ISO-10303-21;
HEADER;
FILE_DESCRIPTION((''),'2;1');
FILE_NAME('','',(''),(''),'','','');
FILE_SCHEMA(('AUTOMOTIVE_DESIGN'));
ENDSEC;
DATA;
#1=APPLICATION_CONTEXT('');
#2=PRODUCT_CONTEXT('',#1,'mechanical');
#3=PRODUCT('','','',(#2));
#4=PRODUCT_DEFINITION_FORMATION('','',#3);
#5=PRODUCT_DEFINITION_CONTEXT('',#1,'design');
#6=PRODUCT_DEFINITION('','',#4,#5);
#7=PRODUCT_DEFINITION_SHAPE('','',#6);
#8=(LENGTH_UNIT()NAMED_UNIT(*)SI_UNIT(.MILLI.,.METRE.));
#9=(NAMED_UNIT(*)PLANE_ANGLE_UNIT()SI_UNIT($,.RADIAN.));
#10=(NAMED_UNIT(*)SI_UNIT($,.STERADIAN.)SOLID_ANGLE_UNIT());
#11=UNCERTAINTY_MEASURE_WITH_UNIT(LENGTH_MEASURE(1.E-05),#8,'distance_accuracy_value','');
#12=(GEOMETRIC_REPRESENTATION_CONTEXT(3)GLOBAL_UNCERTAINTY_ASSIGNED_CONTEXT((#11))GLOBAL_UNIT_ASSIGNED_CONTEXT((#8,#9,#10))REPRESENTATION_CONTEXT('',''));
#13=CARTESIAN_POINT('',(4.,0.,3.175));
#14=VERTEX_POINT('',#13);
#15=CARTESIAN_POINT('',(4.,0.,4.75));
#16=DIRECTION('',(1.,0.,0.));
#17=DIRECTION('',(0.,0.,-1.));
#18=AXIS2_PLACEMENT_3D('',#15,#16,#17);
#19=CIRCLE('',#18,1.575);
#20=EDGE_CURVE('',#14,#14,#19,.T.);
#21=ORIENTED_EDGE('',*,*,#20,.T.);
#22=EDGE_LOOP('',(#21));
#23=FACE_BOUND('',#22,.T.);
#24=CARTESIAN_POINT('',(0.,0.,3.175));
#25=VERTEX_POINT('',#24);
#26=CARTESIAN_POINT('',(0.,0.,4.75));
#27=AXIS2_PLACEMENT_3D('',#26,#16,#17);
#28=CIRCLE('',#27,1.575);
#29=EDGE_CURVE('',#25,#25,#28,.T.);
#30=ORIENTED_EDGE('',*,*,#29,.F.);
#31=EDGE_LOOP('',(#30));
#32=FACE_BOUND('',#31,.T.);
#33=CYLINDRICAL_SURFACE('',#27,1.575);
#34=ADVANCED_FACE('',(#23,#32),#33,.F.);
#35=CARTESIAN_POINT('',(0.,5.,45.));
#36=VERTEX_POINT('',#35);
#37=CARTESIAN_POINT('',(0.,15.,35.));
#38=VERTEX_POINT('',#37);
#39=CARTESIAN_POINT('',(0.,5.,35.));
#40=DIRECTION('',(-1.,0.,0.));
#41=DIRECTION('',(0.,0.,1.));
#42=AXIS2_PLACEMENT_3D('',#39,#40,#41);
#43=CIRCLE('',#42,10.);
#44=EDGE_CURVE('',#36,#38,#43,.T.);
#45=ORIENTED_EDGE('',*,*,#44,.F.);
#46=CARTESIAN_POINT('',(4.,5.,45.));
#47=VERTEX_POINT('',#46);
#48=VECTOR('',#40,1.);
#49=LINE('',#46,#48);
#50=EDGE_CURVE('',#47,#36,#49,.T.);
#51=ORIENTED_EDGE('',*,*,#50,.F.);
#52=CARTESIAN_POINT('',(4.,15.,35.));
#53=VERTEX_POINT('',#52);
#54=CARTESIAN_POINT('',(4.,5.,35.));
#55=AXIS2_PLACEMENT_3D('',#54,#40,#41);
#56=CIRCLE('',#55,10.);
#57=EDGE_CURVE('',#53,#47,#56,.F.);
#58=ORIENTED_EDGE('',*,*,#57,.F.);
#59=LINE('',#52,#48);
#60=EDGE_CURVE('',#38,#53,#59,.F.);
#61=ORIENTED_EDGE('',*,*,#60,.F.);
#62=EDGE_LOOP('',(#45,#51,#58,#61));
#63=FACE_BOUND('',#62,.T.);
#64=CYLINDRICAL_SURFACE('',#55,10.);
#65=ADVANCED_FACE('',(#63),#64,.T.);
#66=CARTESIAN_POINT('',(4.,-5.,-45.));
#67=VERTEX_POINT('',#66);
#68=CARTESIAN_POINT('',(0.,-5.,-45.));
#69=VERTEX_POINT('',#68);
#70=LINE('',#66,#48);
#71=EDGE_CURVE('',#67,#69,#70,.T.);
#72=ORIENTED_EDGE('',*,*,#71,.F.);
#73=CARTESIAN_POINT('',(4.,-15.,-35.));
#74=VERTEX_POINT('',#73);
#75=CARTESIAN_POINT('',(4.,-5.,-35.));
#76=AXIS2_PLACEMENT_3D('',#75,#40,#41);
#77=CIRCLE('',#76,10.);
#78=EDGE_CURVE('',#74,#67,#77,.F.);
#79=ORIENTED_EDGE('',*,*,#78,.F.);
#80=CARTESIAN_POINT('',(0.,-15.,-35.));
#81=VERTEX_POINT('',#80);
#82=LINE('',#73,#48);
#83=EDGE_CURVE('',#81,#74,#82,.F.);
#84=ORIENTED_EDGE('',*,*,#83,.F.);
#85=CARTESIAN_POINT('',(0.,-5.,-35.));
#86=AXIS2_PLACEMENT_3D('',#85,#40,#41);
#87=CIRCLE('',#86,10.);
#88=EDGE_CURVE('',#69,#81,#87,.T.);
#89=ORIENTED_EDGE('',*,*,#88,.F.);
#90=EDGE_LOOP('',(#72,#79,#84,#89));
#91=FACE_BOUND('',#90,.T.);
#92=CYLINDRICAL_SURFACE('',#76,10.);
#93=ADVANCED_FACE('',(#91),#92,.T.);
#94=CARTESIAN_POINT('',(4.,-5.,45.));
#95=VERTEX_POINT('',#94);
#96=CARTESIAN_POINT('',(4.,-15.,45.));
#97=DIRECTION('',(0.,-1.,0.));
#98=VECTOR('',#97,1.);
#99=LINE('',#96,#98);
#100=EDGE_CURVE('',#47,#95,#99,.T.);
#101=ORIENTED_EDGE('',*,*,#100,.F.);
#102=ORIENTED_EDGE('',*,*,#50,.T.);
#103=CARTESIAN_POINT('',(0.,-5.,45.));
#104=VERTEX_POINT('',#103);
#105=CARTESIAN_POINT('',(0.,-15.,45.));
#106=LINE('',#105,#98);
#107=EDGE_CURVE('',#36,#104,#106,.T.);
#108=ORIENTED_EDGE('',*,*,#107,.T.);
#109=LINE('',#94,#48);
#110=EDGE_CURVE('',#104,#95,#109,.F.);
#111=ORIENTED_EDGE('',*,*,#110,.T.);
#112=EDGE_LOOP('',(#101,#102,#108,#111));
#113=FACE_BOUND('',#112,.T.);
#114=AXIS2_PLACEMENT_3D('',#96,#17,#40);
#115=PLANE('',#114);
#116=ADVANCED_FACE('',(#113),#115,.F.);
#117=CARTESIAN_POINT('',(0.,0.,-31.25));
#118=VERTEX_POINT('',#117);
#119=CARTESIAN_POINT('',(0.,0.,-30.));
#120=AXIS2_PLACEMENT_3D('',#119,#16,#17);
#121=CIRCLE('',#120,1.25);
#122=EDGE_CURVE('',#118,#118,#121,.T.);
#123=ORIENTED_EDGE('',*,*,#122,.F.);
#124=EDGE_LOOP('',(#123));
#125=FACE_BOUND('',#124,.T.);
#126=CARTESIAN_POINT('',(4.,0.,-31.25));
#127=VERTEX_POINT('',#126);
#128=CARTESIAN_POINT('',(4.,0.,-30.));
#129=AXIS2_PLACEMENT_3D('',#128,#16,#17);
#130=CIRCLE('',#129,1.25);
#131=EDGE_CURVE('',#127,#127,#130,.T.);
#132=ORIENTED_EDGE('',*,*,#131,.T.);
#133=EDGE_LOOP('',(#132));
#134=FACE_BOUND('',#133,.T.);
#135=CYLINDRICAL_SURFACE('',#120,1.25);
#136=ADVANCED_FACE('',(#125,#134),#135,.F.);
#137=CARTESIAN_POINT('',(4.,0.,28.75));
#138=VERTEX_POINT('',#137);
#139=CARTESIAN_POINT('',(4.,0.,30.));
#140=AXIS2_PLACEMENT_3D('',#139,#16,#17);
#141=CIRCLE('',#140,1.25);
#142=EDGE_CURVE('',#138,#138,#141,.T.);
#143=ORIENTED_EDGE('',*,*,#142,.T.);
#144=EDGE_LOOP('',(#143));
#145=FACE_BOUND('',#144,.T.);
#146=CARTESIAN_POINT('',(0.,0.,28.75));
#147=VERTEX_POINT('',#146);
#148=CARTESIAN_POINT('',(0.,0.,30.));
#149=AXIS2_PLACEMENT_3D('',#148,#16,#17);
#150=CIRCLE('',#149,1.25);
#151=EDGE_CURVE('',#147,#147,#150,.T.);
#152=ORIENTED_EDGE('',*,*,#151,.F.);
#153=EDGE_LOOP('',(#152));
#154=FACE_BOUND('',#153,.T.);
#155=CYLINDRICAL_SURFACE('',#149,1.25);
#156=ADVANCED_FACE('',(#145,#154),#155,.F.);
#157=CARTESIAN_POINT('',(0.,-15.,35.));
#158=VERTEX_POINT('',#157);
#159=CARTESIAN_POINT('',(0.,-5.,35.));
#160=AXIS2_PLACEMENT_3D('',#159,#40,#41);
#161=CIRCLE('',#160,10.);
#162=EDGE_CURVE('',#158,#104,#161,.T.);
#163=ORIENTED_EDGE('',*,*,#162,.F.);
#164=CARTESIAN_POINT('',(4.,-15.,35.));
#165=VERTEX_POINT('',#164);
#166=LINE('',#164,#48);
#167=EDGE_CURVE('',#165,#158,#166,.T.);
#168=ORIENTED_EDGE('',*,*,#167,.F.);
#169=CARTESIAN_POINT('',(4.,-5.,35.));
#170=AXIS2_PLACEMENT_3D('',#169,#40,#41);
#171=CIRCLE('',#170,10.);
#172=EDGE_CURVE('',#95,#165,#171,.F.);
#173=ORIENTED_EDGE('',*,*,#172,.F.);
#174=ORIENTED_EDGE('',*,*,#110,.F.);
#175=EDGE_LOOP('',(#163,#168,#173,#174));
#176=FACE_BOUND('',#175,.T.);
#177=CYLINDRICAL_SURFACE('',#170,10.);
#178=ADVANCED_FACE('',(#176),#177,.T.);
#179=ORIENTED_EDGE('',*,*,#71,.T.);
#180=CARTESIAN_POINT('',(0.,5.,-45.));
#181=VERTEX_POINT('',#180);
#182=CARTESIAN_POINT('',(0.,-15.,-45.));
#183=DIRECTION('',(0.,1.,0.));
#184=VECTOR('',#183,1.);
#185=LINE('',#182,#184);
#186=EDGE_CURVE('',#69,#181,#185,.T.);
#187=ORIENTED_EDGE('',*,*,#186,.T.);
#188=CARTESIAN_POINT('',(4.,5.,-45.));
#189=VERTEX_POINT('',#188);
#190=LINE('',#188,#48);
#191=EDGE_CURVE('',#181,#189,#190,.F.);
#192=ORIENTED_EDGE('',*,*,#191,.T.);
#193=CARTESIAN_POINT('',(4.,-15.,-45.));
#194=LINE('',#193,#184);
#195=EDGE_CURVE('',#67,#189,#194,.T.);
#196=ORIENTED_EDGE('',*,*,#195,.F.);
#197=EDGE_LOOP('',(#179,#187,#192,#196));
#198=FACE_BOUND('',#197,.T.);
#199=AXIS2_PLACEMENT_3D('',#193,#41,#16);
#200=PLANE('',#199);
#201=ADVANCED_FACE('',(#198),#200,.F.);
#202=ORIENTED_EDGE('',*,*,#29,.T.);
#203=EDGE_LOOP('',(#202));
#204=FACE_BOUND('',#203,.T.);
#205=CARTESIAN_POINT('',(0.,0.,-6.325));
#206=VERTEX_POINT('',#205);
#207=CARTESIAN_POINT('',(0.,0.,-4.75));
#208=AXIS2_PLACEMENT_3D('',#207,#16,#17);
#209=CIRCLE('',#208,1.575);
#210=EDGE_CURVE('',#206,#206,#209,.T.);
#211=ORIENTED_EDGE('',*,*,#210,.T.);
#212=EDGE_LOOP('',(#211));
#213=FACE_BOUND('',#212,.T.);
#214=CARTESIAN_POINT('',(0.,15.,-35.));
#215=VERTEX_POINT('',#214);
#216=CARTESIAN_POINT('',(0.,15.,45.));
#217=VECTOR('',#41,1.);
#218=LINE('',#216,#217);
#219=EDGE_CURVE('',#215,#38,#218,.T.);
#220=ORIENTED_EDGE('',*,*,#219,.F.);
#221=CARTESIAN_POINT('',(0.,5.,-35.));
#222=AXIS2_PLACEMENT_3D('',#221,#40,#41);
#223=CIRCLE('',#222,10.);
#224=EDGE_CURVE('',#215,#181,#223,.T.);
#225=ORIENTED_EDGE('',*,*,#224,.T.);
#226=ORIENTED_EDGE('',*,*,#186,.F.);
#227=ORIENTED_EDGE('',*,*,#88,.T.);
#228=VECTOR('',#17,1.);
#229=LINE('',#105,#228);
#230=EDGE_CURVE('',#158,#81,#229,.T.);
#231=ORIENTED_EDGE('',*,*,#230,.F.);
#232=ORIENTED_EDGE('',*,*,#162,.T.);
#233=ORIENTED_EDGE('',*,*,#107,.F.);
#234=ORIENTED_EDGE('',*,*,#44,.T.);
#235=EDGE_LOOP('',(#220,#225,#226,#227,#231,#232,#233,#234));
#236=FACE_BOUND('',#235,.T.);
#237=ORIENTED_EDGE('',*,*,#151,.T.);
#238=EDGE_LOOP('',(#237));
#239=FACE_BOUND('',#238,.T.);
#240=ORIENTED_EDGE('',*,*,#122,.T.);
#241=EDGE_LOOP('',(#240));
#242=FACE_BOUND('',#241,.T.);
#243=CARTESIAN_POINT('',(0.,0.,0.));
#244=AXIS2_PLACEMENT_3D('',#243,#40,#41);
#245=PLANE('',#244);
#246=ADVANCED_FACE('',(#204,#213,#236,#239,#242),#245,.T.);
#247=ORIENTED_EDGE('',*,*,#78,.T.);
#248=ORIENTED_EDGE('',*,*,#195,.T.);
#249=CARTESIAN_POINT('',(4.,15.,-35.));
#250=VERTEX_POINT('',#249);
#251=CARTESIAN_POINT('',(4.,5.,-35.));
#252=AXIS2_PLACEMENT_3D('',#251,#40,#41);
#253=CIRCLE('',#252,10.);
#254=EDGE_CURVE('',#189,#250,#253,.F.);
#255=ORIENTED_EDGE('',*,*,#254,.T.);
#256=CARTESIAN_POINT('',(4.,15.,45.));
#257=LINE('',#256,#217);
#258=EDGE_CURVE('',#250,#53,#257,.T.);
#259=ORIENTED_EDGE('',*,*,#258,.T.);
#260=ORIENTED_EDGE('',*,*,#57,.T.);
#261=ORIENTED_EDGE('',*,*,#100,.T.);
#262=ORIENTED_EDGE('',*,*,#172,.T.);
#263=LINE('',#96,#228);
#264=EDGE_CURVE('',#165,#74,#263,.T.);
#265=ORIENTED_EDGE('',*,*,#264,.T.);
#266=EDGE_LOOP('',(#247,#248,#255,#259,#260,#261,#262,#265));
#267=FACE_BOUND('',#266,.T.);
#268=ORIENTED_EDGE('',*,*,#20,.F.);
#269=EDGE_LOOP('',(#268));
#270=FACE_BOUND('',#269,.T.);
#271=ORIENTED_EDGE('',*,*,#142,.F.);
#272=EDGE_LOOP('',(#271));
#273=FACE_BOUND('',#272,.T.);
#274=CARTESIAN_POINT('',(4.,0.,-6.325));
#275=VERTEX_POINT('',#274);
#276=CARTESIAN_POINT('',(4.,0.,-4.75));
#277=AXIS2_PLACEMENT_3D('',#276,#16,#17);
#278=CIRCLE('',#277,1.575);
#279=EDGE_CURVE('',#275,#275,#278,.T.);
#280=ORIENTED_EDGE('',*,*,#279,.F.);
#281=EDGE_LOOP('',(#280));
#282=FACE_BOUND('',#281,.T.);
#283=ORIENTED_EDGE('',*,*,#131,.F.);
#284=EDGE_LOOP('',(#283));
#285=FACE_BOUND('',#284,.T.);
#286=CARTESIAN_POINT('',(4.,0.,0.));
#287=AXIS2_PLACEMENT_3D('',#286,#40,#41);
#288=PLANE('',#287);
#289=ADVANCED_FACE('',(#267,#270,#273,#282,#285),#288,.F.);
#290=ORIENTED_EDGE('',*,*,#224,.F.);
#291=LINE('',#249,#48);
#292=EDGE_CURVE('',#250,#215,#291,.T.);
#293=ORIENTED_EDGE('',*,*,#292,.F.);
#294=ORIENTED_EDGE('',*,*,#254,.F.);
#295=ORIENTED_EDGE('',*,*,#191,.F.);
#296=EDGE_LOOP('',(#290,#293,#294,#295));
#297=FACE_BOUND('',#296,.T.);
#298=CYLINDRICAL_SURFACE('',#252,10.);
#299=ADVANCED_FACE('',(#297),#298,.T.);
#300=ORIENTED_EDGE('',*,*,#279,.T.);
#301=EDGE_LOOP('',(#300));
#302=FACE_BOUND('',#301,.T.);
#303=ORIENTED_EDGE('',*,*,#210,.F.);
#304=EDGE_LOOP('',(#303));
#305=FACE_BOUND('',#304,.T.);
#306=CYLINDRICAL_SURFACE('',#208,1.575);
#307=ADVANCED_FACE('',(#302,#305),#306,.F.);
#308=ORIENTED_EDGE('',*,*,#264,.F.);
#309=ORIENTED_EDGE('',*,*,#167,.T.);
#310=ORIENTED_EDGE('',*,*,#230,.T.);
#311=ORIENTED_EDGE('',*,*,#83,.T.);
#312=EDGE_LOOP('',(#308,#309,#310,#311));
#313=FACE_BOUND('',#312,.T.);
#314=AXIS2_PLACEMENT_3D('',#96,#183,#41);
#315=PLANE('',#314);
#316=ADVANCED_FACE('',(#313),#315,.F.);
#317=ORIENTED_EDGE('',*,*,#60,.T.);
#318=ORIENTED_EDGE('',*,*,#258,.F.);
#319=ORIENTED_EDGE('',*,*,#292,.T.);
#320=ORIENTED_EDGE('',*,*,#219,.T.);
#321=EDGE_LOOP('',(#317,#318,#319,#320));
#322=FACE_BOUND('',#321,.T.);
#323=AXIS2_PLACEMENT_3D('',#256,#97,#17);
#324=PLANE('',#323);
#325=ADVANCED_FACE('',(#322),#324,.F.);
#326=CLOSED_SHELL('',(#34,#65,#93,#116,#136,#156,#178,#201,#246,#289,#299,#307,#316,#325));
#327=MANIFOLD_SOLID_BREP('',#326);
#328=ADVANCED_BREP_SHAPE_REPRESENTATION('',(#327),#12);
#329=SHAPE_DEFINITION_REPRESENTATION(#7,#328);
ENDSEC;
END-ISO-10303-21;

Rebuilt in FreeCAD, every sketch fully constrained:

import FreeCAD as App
import Part
import Sketcher

V = App.Vector
Q = App.Units.Quantity


def edges_at(feature, points):
    """Names of the edges that pass closest to the given points."""
    edges = feature.Shape.Edges
    near = lambda p: min(range(len(edges)), key=lambda i: edges[i].distToShape(Part.Vertex(*p))[0])
    return sorted({f"Edge{near(p) + 1}" for p in points})

doc = App.newDocument("Part")
body = doc.addObject("PartDesign::Body", "Body")

# Sketch on YZ plane
sketch1 = body.newObject("Sketcher::SketchObject", "Sketch")
sketch1.AttachmentSupport = (doc.getObject("YZ_Plane"), [""])
sketch1.MapMode = "FlatFace"
sketch1.addGeometry(Part.LineSegment(V(15, 45, 0), V(-15, 45, 0)), False)
sketch1.addGeometry(Part.LineSegment(V(-15, 45, 0), V(-15, -45, 0)), False)
sketch1.addGeometry(Part.LineSegment(V(-15, -45, 0), V(15, -45, 0)), False)
sketch1.addGeometry(Part.LineSegment(V(15, -45, 0), V(15, 45, 0)), False)
sketch1.addConstraint(Sketcher.Constraint("Coincident", 0, 2, 1, 1))
sketch1.addConstraint(Sketcher.Constraint("Coincident", 1, 2, 2, 1))
sketch1.addConstraint(Sketcher.Constraint("Coincident", 2, 2, 3, 1))
sketch1.addConstraint(Sketcher.Constraint("Coincident", 3, 2, 0, 1))
sketch1.addConstraint(Sketcher.Constraint("Horizontal", 0))
sketch1.addConstraint(Sketcher.Constraint("Vertical", 1))
sketch1.addConstraint(Sketcher.Constraint("Horizontal", 2))
sketch1.addConstraint(Sketcher.Constraint("Vertical", 3))
sketch1.addConstraint(Sketcher.Constraint("Symmetric", 0, 2, 2, 2, -1, 1))
sketch1.addConstraint(Sketcher.Constraint("DistanceX", 0, 2, 0, 1, Q("30 mm")))
sketch1.addConstraint(Sketcher.Constraint("DistanceY", 1, 2, 1, 1, Q("90 mm")))
pad1 = body.newObject("PartDesign::Pad", "Pad")
pad1.Profile = sketch1
pad1.Length = 4

# Sketch on YZ plane
sketch2 = body.newObject("Sketcher::SketchObject", "Sketch001")
sketch2.AttachmentSupport = (doc.getObject("YZ_Plane"), [""])
sketch2.MapMode = "FlatFace"
sketch2.AttachmentOffset = App.Placement(V(0, 0, 4), App.Rotation())
sketch2.addGeometry(Part.Circle(V(0, 4.8, 0), V(0, 0, 1), 1.6), False)
sketch2.addConstraint(Sketcher.Constraint("PointOnObject", 0, 3, -2))
sketch2.addConstraint(Sketcher.Constraint("Diameter", 0, Q("3.15 mm")))
sketch2.addConstraint(Sketcher.Constraint("DistanceY", -1, 1, 0, 3, Q("4.75 mm")))
pocket1 = body.newObject("PartDesign::Pocket", "Pocket")
pocket1.Profile = sketch2
pocket1.Type = "ThroughAll"

# Sketch on YZ plane
sketch3 = body.newObject("Sketcher::SketchObject", "Sketch002")
sketch3.AttachmentSupport = (doc.getObject("YZ_Plane"), [""])
sketch3.MapMode = "FlatFace"
sketch3.AttachmentOffset = App.Placement(V(0, 0, 4), App.Rotation())
sketch3.addGeometry(Part.Circle(V(0, -4.8, 0), V(0, 0, 1), 1.6), False)
sketch3.addConstraint(Sketcher.Constraint("PointOnObject", 0, 3, -2))
sketch3.addConstraint(Sketcher.Constraint("Diameter", 0, Q("3.15 mm")))
sketch3.addConstraint(Sketcher.Constraint("DistanceY", 0, 3, -1, 1, Q("4.75 mm")))
pocket2 = body.newObject("PartDesign::Pocket", "Pocket001")
pocket2.Profile = sketch3
pocket2.Type = "ThroughAll"

# Sketch on YZ plane
sketch4 = body.newObject("Sketcher::SketchObject", "Sketch003")
sketch4.AttachmentSupport = (doc.getObject("YZ_Plane"), [""])
sketch4.MapMode = "FlatFace"
sketch4.AttachmentOffset = App.Placement(V(0, 0, 4), App.Rotation())
sketch4.addGeometry(Part.Circle(V(0, 30, 0), V(0, 0, 1), 1.2), False)
sketch4.addConstraint(Sketcher.Constraint("PointOnObject", 0, 3, -2))
sketch4.addConstraint(Sketcher.Constraint("Diameter", 0, Q("2.5 mm")))
sketch4.addConstraint(Sketcher.Constraint("DistanceY", -1, 1, 0, 3, Q("30 mm")))
pocket3 = body.newObject("PartDesign::Pocket", "Pocket002")
pocket3.Profile = sketch4
pocket3.Type = "ThroughAll"

# Sketch on YZ plane
sketch5 = body.newObject("Sketcher::SketchObject", "Sketch004")
sketch5.AttachmentSupport = (doc.getObject("YZ_Plane"), [""])
sketch5.MapMode = "FlatFace"
sketch5.AttachmentOffset = App.Placement(V(0, 0, 4), App.Rotation())
sketch5.addGeometry(Part.Circle(V(0, -30, 0), V(0, 0, 1), 1.2), False)
sketch5.addConstraint(Sketcher.Constraint("PointOnObject", 0, 3, -2))
sketch5.addConstraint(Sketcher.Constraint("Diameter", 0, Q("2.5 mm")))
sketch5.addConstraint(Sketcher.Constraint("DistanceY", 0, 3, -1, 1, Q("30 mm")))
pocket4 = body.newObject("PartDesign::Pocket", "Pocket003")
pocket4.Profile = sketch5
pocket4.Type = "ThroughAll"
doc.recompute()

fillet = body.newObject("PartDesign::Fillet", "Fillet")
fillet.Base = (pocket4, edges_at(pocket4, [
    (2, -15, -45),
    (2, -15, 45),
    (2, 15, 45),
    (2, 15, -45),
]))
fillet.Radius = 10

doc.recompute()
